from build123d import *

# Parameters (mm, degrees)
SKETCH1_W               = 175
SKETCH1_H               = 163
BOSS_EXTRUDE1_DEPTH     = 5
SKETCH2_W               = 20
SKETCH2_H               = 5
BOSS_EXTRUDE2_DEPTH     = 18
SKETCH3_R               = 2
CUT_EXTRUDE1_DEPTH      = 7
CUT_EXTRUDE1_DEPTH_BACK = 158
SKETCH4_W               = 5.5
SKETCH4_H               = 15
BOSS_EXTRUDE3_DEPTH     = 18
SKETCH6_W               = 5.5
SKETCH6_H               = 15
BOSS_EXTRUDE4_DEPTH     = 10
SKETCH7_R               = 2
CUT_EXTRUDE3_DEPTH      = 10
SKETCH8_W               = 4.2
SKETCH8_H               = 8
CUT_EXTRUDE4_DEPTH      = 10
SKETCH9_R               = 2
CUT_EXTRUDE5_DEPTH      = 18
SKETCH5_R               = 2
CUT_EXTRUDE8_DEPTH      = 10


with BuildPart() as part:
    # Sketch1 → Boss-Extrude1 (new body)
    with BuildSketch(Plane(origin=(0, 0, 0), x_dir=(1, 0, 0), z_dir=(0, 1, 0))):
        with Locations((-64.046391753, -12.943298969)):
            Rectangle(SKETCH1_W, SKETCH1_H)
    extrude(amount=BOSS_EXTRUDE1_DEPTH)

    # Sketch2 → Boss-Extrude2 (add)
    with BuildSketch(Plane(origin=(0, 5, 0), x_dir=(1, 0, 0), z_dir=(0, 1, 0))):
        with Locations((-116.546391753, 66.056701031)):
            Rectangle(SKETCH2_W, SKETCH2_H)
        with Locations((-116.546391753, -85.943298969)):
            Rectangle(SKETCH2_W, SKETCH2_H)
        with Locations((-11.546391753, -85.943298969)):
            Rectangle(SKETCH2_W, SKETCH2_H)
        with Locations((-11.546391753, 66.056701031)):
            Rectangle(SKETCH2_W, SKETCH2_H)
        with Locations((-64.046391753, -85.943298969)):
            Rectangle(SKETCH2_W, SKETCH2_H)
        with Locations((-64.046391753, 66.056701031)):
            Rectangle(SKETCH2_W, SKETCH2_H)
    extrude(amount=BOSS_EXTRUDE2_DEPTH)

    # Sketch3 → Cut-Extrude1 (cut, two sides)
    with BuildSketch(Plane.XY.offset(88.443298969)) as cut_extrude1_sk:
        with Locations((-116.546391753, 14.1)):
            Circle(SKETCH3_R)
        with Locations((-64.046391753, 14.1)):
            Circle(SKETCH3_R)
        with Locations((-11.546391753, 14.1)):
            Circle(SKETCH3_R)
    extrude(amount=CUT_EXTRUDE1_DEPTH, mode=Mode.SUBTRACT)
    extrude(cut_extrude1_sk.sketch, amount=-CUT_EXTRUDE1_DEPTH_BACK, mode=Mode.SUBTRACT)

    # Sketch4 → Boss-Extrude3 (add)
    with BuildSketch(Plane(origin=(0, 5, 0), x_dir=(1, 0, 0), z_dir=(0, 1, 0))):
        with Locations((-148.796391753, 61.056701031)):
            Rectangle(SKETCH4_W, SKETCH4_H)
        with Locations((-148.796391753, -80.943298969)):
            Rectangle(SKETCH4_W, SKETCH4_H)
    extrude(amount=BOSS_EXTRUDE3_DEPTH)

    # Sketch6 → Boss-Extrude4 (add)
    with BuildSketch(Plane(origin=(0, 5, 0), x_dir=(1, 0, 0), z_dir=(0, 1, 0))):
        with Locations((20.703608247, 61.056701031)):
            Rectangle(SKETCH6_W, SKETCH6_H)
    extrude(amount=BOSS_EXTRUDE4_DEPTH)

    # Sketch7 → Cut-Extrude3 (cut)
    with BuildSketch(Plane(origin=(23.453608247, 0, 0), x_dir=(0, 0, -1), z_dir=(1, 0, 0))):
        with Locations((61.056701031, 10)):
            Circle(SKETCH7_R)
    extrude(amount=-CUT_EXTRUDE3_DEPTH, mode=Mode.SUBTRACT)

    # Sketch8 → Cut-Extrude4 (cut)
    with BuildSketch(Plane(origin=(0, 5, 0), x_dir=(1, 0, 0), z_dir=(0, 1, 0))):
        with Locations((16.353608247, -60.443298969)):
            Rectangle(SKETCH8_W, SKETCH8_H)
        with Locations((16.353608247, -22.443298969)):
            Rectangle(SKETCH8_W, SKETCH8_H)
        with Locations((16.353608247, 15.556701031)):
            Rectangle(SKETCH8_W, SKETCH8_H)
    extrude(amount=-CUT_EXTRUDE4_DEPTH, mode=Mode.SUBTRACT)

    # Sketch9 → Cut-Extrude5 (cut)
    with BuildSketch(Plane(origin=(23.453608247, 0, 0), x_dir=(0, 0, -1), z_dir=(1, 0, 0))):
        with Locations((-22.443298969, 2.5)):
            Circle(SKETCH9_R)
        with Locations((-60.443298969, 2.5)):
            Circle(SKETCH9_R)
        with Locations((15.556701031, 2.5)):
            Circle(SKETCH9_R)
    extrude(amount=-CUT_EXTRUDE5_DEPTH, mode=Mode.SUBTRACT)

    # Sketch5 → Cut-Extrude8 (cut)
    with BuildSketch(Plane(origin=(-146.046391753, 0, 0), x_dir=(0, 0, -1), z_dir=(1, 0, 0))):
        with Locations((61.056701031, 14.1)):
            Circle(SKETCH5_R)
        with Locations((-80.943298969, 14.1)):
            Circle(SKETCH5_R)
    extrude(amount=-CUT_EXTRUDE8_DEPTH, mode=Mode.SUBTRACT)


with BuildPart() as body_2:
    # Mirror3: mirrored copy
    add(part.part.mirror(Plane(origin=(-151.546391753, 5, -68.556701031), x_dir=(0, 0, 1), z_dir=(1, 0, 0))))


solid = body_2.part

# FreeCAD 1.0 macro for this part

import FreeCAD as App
import Part
import Sketcher
from FreeCAD import Vector
Q = App.Units.Quantity


def add_polygon(sketch, points):
    """Adds a closed chain of lines whose ends are joined by coincident constraints."""
    first, n = sketch.GeometryCount, len(points)
    for a, b in zip(points, points[1:] + points[:1]):
        sketch.addGeometry(Part.LineSegment(App.Vector(*a, 0), App.Vector(*b, 0)), False)
    for i in range(n):
        sketch.addConstraint(Sketcher.Constraint("Coincident", first + i, 2, first + (i + 1) % n, 1))

doc = App.newDocument("Part")
params = doc.addObject("Spreadsheet::Sheet", "Params")
for row, (alias, value) in enumerate([
    ("sketch1_width", "175 mm"),
    ("sketch1_height", "163 mm"),
    ("pad1_length", "5 mm"),
    ("sketch2_width", "20 mm"),
    ("sketch2_height", "5 mm"),
    ("pad2_length", "18 mm"),
    ("sketch3_diameter", "4 mm"),
    ("sketch4_height", "15 mm"),
    ("sketch4_width", "5.5 mm"),
    ("pad3_length", "18 mm"),
    ("sketch5_height", "15 mm"),
    ("sketch5_width", "5.5 mm"),
    ("pad4_length", "10 mm"),
    ("sketch6_diameter", "4 mm"),
    ("pocket2_length", "10 mm"),
    ("sketch7_height", "8 mm"),
    ("sketch7_width", "4.2 mm"),
    ("pocket3_length", "10 mm"),
    ("sketch8_diameter", "4 mm"),
    ("pocket4_length", "18 mm"),
    ("sketch9_diameter", "4 mm"),
    ("pocket5_length", "10 mm"),
], start=1):
    params.set(f"A{row}", alias)
    params.set(f"B{row}", "=" + value)
    params.setAlias(f"B{row}", alias)

body = doc.addObject("PartDesign::Body", "Body")

# Sketch on XZ plane
sketch1 = doc.addObject("Sketcher::SketchObject", "Sketch")
body.addObject(sketch1)
sketch1.AttachmentSupport = (doc.XZ_Plane, [""])
sketch1.MapMode = "FlatFace"
add_polygon(sketch1, [(-152, -69), (-152, 94), (23, 94), (23, -69)])  # lines 0-3
sketch1.addConstraint(Sketcher.Constraint("Vertical", 0))
sketch1.addConstraint(Sketcher.Constraint("Horizontal", 1))
sketch1.addConstraint(Sketcher.Constraint("Vertical", 2))
sketch1.addConstraint(Sketcher.Constraint("Horizontal", 3))
sketch1.addConstraint(Sketcher.Constraint("DistanceX", 1, 1, 1, 2, Q("175 mm")))
sketch1.addConstraint(Sketcher.Constraint("DistanceY", 0, 1, 0, 2, Q("163 mm")))
sketch1.addConstraint(Sketcher.Constraint("DistanceY", -1, 1, 0, 2, Q("94.443299 mm")))
sketch1.addConstraint(Sketcher.Constraint("DistanceX", 0, 2, -1, 1, Q("151.546392 mm")))
sketch1.setExpression("Constraints[8]", "Params.sketch1_width")
sketch1.setExpression("Constraints[9]", "Params.sketch1_height")
pad1 = doc.addObject("PartDesign::Pad", "Pad")
body.addObject(pad1)
pad1.Profile = sketch1
pad1.setExpression("Length", "Params.pad1_length")
pad1.Reversed = True

# Sketch on XZ plane
sketch2 = doc.addObject("Sketcher::SketchObject", "Sketch001")
body.addObject(sketch2)
sketch2.AttachmentSupport = (doc.XZ_Plane, [""])
sketch2.MapMode = "FlatFace"
sketch2.AttachmentOffset = App.Placement(Vector(0, 0, -5), App.Rotation())
add_polygon(sketch2, [(-127, -69), (-127, -64), (-107, -64), (-107, -69)])  # lines 0-3
add_polygon(sketch2, [(-127, 83), (-127, 88), (-107, 88), (-107, 83)])  # lines 4-7
add_polygon(sketch2, [(-22, 83), (-22, 88), (-2, 88), (-2, 83)])  # lines 8-11
add_polygon(sketch2, [(-22, -69), (-22, -64), (-2, -64), (-2, -69)])  # lines 12-15
add_polygon(sketch2, [(-74, 83), (-74, 88), (-54, 88), (-54, 83)])  # lines 16-19
add_polygon(sketch2, [(-74, -69), (-74, -64), (-54, -64), (-54, -69)])  # lines 20-23
sketch2.addConstraint(Sketcher.Constraint("Vertical", 0))
sketch2.addConstraint(Sketcher.Constraint("Horizontal", 1))
sketch2.addConstraint(Sketcher.Constraint("Vertical", 2))
sketch2.addConstraint(Sketcher.Constraint("Horizontal", 3))
sketch2.addConstraint(Sketcher.Constraint("Vertical", 4))
sketch2.addConstraint(Sketcher.Constraint("Horizontal", 5))
sketch2.addConstraint(Sketcher.Constraint("Vertical", 6))
sketch2.addConstraint(Sketcher.Constraint("Horizontal", 7))
sketch2.addConstraint(Sketcher.Constraint("Vertical", 8))
sketch2.addConstraint(Sketcher.Constraint("Horizontal", 9))
sketch2.addConstraint(Sketcher.Constraint("Vertical", 10))
sketch2.addConstraint(Sketcher.Constraint("Horizontal", 11))
sketch2.addConstraint(Sketcher.Constraint("Vertical", 12))
sketch2.addConstraint(Sketcher.Constraint("Horizontal", 13))
sketch2.addConstraint(Sketcher.Constraint("Vertical", 14))
sketch2.addConstraint(Sketcher.Constraint("Horizontal", 15))
sketch2.addConstraint(Sketcher.Constraint("Vertical", 16))
sketch2.addConstraint(Sketcher.Constraint("Horizontal", 17))
sketch2.addConstraint(Sketcher.Constraint("Vertical", 18))
sketch2.addConstraint(Sketcher.Constraint("Horizontal", 19))
sketch2.addConstraint(Sketcher.Constraint("Vertical", 20))
sketch2.addConstraint(Sketcher.Constraint("Horizontal", 21))
sketch2.addConstraint(Sketcher.Constraint("Vertical", 22))
sketch2.addConstraint(Sketcher.Constraint("Horizontal", 23))
sketch2.addConstraint(Sketcher.Constraint("Horizontal", 5, 2, 8, 2))
sketch2.addConstraint(Sketcher.Constraint("Horizontal", 7, 2, 10, 2))
sketch2.addConstraint(Sketcher.Constraint("Horizontal", 1, 2, 12, 2))
sketch2.addConstraint(Sketcher.Constraint("Horizontal", 3, 2, 14, 2))
sketch2.addConstraint(Sketcher.Constraint("Horizontal", 9, 2, 16, 2))
sketch2.addConstraint(Sketcher.Constraint("Horizontal", 11, 2, 18, 2))
sketch2.addConstraint(Sketcher.Constraint("Horizontal", 13, 2, 20, 2))
sketch2.addConstraint(Sketcher.Constraint("Horizontal", 15, 2, 22, 2))
sketch2.addConstraint(Sketcher.Constraint("Vertical", 3, 2, 4, 2))
sketch2.addConstraint(Sketcher.Constraint("Vertical", 2, 2, 5, 2))
sketch2.addConstraint(Sketcher.Constraint("Vertical", 11, 2, 12, 2))
sketch2.addConstraint(Sketcher.Constraint("Vertical", 10, 2, 13, 2))
sketch2.addConstraint(Sketcher.Constraint("Vertical", 19, 2, 20, 2))
sketch2.addConstraint(Sketcher.Constraint("Vertical", 18, 2, 21, 2))
sketch2.addConstraint(Sketcher.Constraint("Equal", 7, 9))
sketch2.addConstraint(Sketcher.Constraint("Equal", 15, 17))
sketch2.addConstraint(Sketcher.Constraint("Equal", 2, 4))
sketch2.addConstraint(Sketcher.Constraint("DistanceX", 1, 1, 1, 2, Q("20 mm")))
sketch2.addConstraint(Sketcher.Constraint("DistanceY", 0, 1, 0, 2, Q("5 mm")))
sketch2.addConstraint(Sketcher.Constraint("DistanceY", 0, 2, 4, 2, Q("152 mm")))
sketch2.addConstraint(Sketcher.Constraint("DistanceX", 5, 2, 8, 2, Q("85 mm")))
sketch2.addConstraint(Sketcher.Constraint("DistanceX", 5, 2, 16, 2, Q("32.5 mm")))
sketch2.addConstraint(Sketcher.Constraint("DistanceY", 0, 2, -1, 1, Q("63.556701 mm")))
sketch2.addConstraint(Sketcher.Constraint("DistanceX", 0, 2, -1, 1, Q("126.546392 mm")))
sketch2.setExpression("Constraints[65]", "Params.sketch2_width")
sketch2.setExpression("Constraints[66]", "Params.sketch2_height")
pad2 = doc.addObject("PartDesign::Pad", "Pad001")
body.addObject(pad2)
pad2.Profile = sketch2
pad2.setExpression("Length", "Params.pad2_length")
pad2.Reversed = True

# Sketch on XY plane
sketch3 = doc.addObject("Sketcher::SketchObject", "Sketch002")
body.addObject(sketch3)
sketch3.AttachmentSupport = (doc.XY_Plane, [""])
sketch3.MapMode = "FlatFace"
sketch3.AttachmentOffset = App.Placement(Vector(0, 0, 88.443299), App.Rotation())
sketch3.addGeometry(Part.Circle(Vector(-116.5, 14.1, 0), Vector(0, 0, 1), 2), False)
sketch3.addGeometry(Part.Circle(Vector(-64, 14.1, 0), Vector(0, 0, 1), 2), False)
sketch3.addGeometry(Part.Circle(Vector(-11.5, 14.1, 0), Vector(0, 0, 1), 2), False)
sketch3.addConstraint(Sketcher.Constraint("Equal", 0, 1))
sketch3.addConstraint(Sketcher.Constraint("Equal", 1, 2))
sketch3.addConstraint(Sketcher.Constraint("Horizontal", 0, 3, 1, 3))
sketch3.addConstraint(Sketcher.Constraint("Horizontal", 1, 3, 2, 3))
sketch3.addConstraint(Sketcher.Constraint("Diameter", 0, Q("4 mm")))
sketch3.addConstraint(Sketcher.Constraint("DistanceX", 0, 3, 2, 3, Q("105 mm")))
sketch3.addConstraint(Sketcher.Constraint("DistanceY", -1, 1, 0, 3, Q("14.1 mm")))
sketch3.addConstraint(Sketcher.Constraint("DistanceX", 0, 3, 1, 3, Q("52.5 mm")))
sketch3.addConstraint(Sketcher.Constraint("DistanceX", 0, 3, -1, 1, Q("116.546392 mm")))
sketch3.setExpression("Constraints[4]", "Params.sketch3_diameter")
pocket1 = doc.addObject("PartDesign::Pocket", "Pocket")
body.addObject(pocket1)
pocket1.Profile = sketch3
pocket1.Type = "ThroughAll"
pocket1.Midplane = True

# Sketch on XZ plane
sketch4 = doc.addObject("Sketcher::SketchObject", "Sketch003")
body.addObject(sketch4)
sketch4.AttachmentSupport = (doc.XZ_Plane, [""])
sketch4.MapMode = "FlatFace"
sketch4.AttachmentOffset = App.Placement(Vector(0, 0, -5), App.Rotation())
add_polygon(sketch4, [(-152, -69), (-152, -54), (-146, -54), (-146, -69)])  # lines 0-3
add_polygon(sketch4, [(-152, 73), (-152, 88), (-146, 88), (-146, 73)])  # lines 4-7
sketch4.addConstraint(Sketcher.Constraint("Vertical", 0))
sketch4.addConstraint(Sketcher.Constraint("Horizontal", 1))
sketch4.addConstraint(Sketcher.Constraint("Vertical", 2))
sketch4.addConstraint(Sketcher.Constraint("Horizontal", 3))
sketch4.addConstraint(Sketcher.Constraint("Vertical", 4))
sketch4.addConstraint(Sketcher.Constraint("Horizontal", 5))
sketch4.addConstraint(Sketcher.Constraint("Vertical", 6))
sketch4.addConstraint(Sketcher.Constraint("Horizontal", 7))
sketch4.addConstraint(Sketcher.Constraint("Vertical", 3, 2, 4, 2))
sketch4.addConstraint(Sketcher.Constraint("Vertical", 2, 2, 5, 2))
sketch4.addConstraint(Sketcher.Constraint("Equal", 2, 4))
sketch4.addConstraint(Sketcher.Constraint("DistanceY", 0, 1, 0, 2, Q("15 mm")))
sketch4.addConstraint(Sketcher.Constraint("DistanceX", 1, 1, 1, 2, Q("5.5 mm")))
sketch4.addConstraint(Sketcher.Constraint("DistanceY", 0, 2, 4, 2, Q("142 mm")))
sketch4.addConstraint(Sketcher.Constraint("DistanceY", 0, 2, -1, 1, Q("53.556701 mm")))
sketch4.addConstraint(Sketcher.Constraint("DistanceX", 0, 2, -1, 1, Q("151.546392 mm")))
sketch4.setExpression("Constraints[19]", "Params.sketch4_height")
sketch4.setExpression("Constraints[20]", "Params.sketch4_width")
pad3 = doc.addObject("PartDesign::Pad", "Pad002")
body.addObject(pad3)
pad3.Profile = sketch4
pad3.setExpression("Length", "Params.pad3_length")
pad3.Reversed = True

# Sketch on XZ plane
sketch5 = doc.addObject("Sketcher::SketchObject", "Sketch004")
body.addObject(sketch5)
sketch5.AttachmentSupport = (doc.XZ_Plane, [""])
sketch5.MapMode = "FlatFace"
sketch5.AttachmentOffset = App.Placement(Vector(0, 0, -5), App.Rotation())
add_polygon(sketch5, [(18, -69), (18, -54), (23, -54), (23, -69)])  # lines 0-3
sketch5.addConstraint(Sketcher.Constraint("Vertical", 0))
sketch5.addConstraint(Sketcher.Constraint("Horizontal", 1))
sketch5.addConstraint(Sketcher.Constraint("Vertical", 2))
sketch5.addConstraint(Sketcher.Constraint("Horizontal", 3))
sketch5.addConstraint(Sketcher.Constraint("DistanceY", 0, 1, 0, 2, Q("15 mm")))
sketch5.addConstraint(Sketcher.Constraint("DistanceX", 1, 1, 1, 2, Q("5.5 mm")))
sketch5.addConstraint(Sketcher.Constraint("DistanceY", 0, 2, -1, 1, Q("53.556701 mm")))
sketch5.addConstraint(Sketcher.Constraint("DistanceX", -1, 1, 0, 2, Q("17.953608 mm")))
sketch5.setExpression("Constraints[8]", "Params.sketch5_height")
sketch5.setExpression("Constraints[9]", "Params.sketch5_width")
pad4 = doc.addObject("PartDesign::Pad", "Pad003")
body.addObject(pad4)
pad4.Profile = sketch5
pad4.setExpression("Length", "Params.pad4_length")
pad4.Reversed = True

# Sketch on YZ plane
sketch6 = doc.addObject("Sketcher::SketchObject", "Sketch005")
body.addObject(sketch6)
sketch6.AttachmentSupport = (doc.YZ_Plane, [""])
sketch6.MapMode = "FlatFace"
sketch6.AttachmentOffset = App.Placement(Vector(0, 0, 23.453608), App.Rotation())
sketch6.addGeometry(Part.Circle(Vector(10, -61.1, 0), Vector(0, 0, 1), 2), False)
sketch6.addConstraint(Sketcher.Constraint("Diameter", 0, Q("4 mm")))
sketch6.addConstraint(Sketcher.Constraint("DistanceX", -1, 1, 0, 3, Q("10 mm")))
sketch6.addConstraint(Sketcher.Constraint("DistanceY", 0, 3, -1, 1, Q("61.056701 mm")))
sketch6.setExpression("Constraints[0]", "Params.sketch6_diameter")
pocket2 = doc.addObject("PartDesign::Pocket", "Pocket001")
body.addObject(pocket2)
pocket2.Profile = sketch6
pocket2.setExpression("Length", "Params.pocket2_length")

# Sketch on XZ plane
sketch7 = doc.addObject("Sketcher::SketchObject", "Sketch006")
body.addObject(sketch7)
sketch7.AttachmentSupport = (doc.XZ_Plane, [""])
sketch7.MapMode = "FlatFace"
sketch7.AttachmentOffset = App.Placement(Vector(0, 0, -5), App.Rotation())
add_polygon(sketch7, [(14.3, 56.4), (14.3, 64.4), (18.5, 64.4), (18.5, 56.4)])  # lines 0-3
add_polygon(sketch7, [(14.3, 18.4), (14.3, 26.4), (18.5, 26.4), (18.5, 18.4)])  # lines 4-7
add_polygon(sketch7, [(14.3, -19.6), (14.3, -11.6), (18.5, -11.6), (18.5, -19.6)])  # lines 8-11
sketch7.addConstraint(Sketcher.Constraint("Vertical", 0))
sketch7.addConstraint(Sketcher.Constraint("Horizontal", 1))
sketch7.addConstraint(Sketcher.Constraint("Vertical", 2))
sketch7.addConstraint(Sketcher.Constraint("Horizontal", 3))
sketch7.addConstraint(Sketcher.Constraint("Vertical", 4))
sketch7.addConstraint(Sketcher.Constraint("Horizontal", 5))
sketch7.addConstraint(Sketcher.Constraint("Vertical", 6))
sketch7.addConstraint(Sketcher.Constraint("Horizontal", 7))
sketch7.addConstraint(Sketcher.Constraint("Vertical", 8))
sketch7.addConstraint(Sketcher.Constraint("Horizontal", 9))
sketch7.addConstraint(Sketcher.Constraint("Vertical", 10))
sketch7.addConstraint(Sketcher.Constraint("Horizontal", 11))
sketch7.addConstraint(Sketcher.Constraint("Vertical", 3, 2, 4, 2))
sketch7.addConstraint(Sketcher.Constraint("Vertical", 2, 2, 5, 2))
sketch7.addConstraint(Sketcher.Constraint("Vertical", 7, 2, 8, 2))
sketch7.addConstraint(Sketcher.Constraint("Vertical", 6, 2, 9, 2))
sketch7.addConstraint(Sketcher.Constraint("Equal", 2, 4))
sketch7.addConstraint(Sketcher.Constraint("Equal", 6, 8))
sketch7.addConstraint(Sketcher.Constraint("DistanceY", 0, 1, 0, 2, Q("8 mm")))
sketch7.addConstraint(Sketcher.Constraint("DistanceX", 1, 1, 1, 2, Q("4.2 mm")))
sketch7.addConstraint(Sketcher.Constraint("DistanceY", 4, 2, 3, 2, Q("30 mm")))
sketch7.addConstraint(Sketcher.Constraint("DistanceY", 8, 2, 7, 2, Q("30 mm")))
sketch7.addConstraint(Sketcher.Constraint("DistanceY", -1, 1, 0, 2, Q("64.443299 mm")))
sketch7.addConstraint(Sketcher.Constraint("DistanceX", -1, 1, 0, 2, Q("14.253608 mm")))
sketch7.setExpression("Constraints[30]", "Params.sketch7_height")
sketch7.setExpression("Constraints[31]", "Params.sketch7_width")
pocket3 = doc.addObject("PartDesign::Pocket", "Pocket002")
body.addObject(pocket3)
pocket3.Profile = sketch7
pocket3.setExpression("Length", "Params.pocket3_length")
pocket3.Reversed = True

# Sketch on YZ plane
sketch8 = doc.addObject("Sketcher::SketchObject", "Sketch007")
body.addObject(sketch8)
sketch8.AttachmentSupport = (doc.YZ_Plane, [""])
sketch8.MapMode = "FlatFace"
sketch8.AttachmentOffset = App.Placement(Vector(0, 0, 23.453608), App.Rotation())
sketch8.addGeometry(Part.Circle(Vector(2.5, 22.4, 0), Vector(0, 0, 1), 2), False)
sketch8.addGeometry(Part.Circle(Vector(2.5, 60.4, 0), Vector(0, 0, 1), 2), False)
sketch8.addGeometry(Part.Circle(Vector(2.5, -15.6, 0), Vector(0, 0, 1), 2), False)
sketch8.addConstraint(Sketcher.Constraint("Equal", 0, 1))
sketch8.addConstraint(Sketcher.Constraint("Equal", 1, 2))
sketch8.addConstraint(Sketcher.Constraint("Vertical", 0, 3, 1, 3))
sketch8.addConstraint(Sketcher.Constraint("Vertical", 1, 3, 2, 3))
sketch8.addConstraint(Sketcher.Constraint("Diameter", 0, Q("4 mm")))
sketch8.addConstraint(Sketcher.Constraint("DistanceY", 0, 3, 1, 3, Q("38 mm")))
sketch8.addConstraint(Sketcher.Constraint("DistanceY", 2, 3, 0, 3, Q("38 mm")))
sketch8.addConstraint(Sketcher.Constraint("DistanceX", -1, 1, 0, 3, Q("2.5 mm")))
sketch8.addConstraint(Sketcher.Constraint("DistanceY", -1, 1, 0, 3, Q("22.443299 mm")))
sketch8.setExpression("Constraints[4]", "Params.sketch8_diameter")
pocket4 = doc.addObject("PartDesign::Pocket", "Pocket003")
body.addObject(pocket4)
pocket4.Profile = sketch8
pocket4.setExpression("Length", "Params.pocket4_length")

# Sketch on YZ plane
sketch9 = doc.addObject("Sketcher::SketchObject", "Sketch008")
body.addObject(sketch9)
sketch9.AttachmentSupport = (doc.YZ_Plane, [""])
sketch9.MapMode = "FlatFace"
sketch9.AttachmentOffset = App.Placement(Vector(0, 0, -146.046392), App.Rotation())
sketch9.addGeometry(Part.Circle(Vector(14.1, -61.1, 0), Vector(0, 0, 1), 2), False)
sketch9.addGeometry(Part.Circle(Vector(14.1, 80.9, 0), Vector(0, 0, 1), 2), False)
sketch9.addConstraint(Sketcher.Constraint("Equal", 0, 1))
sketch9.addConstraint(Sketcher.Constraint("Vertical", 0, 3, 1, 3))
sketch9.addConstraint(Sketcher.Constraint("Diameter", 0, Q("4 mm")))
sketch9.addConstraint(Sketcher.Constraint("DistanceY", 0, 3, 1, 3, Q("142 mm")))
sketch9.addConstraint(Sketcher.Constraint("DistanceX", -1, 1, 0, 3, Q("14.1 mm")))
sketch9.addConstraint(Sketcher.Constraint("DistanceY", 0, 3, -1, 1, Q("61.056701 mm")))
sketch9.setExpression("Constraints[2]", "Params.sketch9_diameter")
pocket5 = doc.addObject("PartDesign::Pocket", "Pocket004")
body.addObject(pocket5)
pocket5.Profile = sketch9
pocket5.setExpression("Length", "Params.pocket5_length")
body2 = doc.addObject("PartDesign::Body", "Body001")
doc.recompute()

mirroring = doc.addObject("Part::Mirroring", "Mirroring")
mirroring.Source = body
mirroring.Base = Vector(-151.546392, 5, -68.556701)
mirroring.Normal = Vector(1, 0, 0)
body2.BaseFeature = mirroring
doc.recompute()
body.Visibility = False
mirroring.Visibility = False

doc.recompute()
